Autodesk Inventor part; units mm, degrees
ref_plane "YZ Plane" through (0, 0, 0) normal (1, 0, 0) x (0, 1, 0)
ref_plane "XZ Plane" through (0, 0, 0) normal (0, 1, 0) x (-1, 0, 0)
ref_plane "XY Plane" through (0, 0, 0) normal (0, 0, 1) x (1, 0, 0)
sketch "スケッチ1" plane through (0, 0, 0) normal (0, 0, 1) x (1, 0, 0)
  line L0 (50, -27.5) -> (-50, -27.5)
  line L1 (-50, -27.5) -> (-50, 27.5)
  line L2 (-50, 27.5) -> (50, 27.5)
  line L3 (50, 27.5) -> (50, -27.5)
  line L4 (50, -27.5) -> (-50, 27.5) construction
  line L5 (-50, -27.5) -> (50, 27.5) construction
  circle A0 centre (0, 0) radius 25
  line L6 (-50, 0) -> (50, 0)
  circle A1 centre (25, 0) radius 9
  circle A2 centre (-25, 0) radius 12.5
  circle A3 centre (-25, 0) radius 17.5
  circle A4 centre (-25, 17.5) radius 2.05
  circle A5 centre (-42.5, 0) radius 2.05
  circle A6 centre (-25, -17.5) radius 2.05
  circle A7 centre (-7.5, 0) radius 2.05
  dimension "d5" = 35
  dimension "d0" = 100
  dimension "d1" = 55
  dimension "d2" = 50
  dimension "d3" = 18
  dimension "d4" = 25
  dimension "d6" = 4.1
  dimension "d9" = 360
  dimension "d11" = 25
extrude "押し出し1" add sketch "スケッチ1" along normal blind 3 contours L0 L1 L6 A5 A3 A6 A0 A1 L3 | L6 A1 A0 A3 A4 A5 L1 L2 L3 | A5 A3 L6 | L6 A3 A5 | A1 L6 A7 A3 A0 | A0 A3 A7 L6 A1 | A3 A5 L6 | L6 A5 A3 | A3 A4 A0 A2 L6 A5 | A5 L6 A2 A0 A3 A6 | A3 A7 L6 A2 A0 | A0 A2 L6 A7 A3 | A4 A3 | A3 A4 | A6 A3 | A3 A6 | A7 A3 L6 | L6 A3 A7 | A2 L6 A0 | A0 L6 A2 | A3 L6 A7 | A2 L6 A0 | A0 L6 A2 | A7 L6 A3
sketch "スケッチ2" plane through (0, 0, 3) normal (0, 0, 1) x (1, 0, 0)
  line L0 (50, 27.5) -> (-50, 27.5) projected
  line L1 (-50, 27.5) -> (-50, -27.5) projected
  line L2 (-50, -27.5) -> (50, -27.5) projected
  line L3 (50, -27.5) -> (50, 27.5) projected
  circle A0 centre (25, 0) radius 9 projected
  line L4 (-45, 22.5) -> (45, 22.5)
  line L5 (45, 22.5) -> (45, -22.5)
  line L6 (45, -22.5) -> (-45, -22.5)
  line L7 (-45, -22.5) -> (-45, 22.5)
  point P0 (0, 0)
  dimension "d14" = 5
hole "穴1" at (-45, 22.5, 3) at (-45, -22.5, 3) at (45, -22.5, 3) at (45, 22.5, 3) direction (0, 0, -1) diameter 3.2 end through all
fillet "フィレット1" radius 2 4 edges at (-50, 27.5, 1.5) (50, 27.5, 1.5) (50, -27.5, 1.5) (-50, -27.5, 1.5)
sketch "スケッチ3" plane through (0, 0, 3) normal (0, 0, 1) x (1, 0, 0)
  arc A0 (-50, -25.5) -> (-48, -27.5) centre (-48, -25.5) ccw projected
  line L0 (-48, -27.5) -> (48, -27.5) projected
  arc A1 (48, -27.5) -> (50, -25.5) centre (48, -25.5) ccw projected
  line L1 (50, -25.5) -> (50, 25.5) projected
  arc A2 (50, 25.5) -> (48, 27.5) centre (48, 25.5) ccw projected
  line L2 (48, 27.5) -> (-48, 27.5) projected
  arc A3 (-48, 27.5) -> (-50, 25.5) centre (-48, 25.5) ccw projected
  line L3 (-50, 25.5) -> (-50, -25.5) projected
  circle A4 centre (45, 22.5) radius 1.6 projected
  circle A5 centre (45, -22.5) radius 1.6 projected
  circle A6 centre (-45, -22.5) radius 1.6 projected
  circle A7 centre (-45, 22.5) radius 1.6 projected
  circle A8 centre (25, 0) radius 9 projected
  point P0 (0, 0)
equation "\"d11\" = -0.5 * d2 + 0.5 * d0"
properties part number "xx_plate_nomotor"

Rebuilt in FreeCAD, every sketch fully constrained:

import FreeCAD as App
import Part
import Sketcher

V = App.Vector
Q = App.Units.Quantity


def edges_at(feature, points):
    """Names of the edges that pass closest to the given points."""
    edges = feature.Shape.Edges
    near = lambda p: min(range(len(edges)), key=lambda i: edges[i].distToShape(Part.Vertex(*p))[0])
    return sorted({f"Edge{near(p) + 1}" for p in points})


def add_polygon(sketch, points):
    """Adds a closed chain of lines whose ends are joined by coincident constraints."""
    first, n = sketch.GeometryCount, len(points)
    for a, b in zip(points, points[1:] + points[:1]):
        sketch.addGeometry(Part.LineSegment(App.Vector(*a, 0), App.Vector(*b, 0)), False)
    for i in range(n):
        sketch.addConstraint(Sketcher.Constraint("Coincident", first + i, 2, first + (i + 1) % n, 1))

doc = App.newDocument("Part")
body = doc.addObject("PartDesign::Body", "Body")

sketch1 = body.newObject("Sketcher::SketchObject", "Sketch")
sketch1.AttachmentSupport = (doc.getObject("XY_Plane"), [""])
sketch1.MapMode = "FlatFace"
add_polygon(sketch1, [(-50, -28), (50, -28), (50, 28), (-50, 28)])
sketch1.addGeometry(Part.Circle(V(25, 0, 0), V(0, 0, 1), 9), False)
sketch1.addConstraint([
    Sketcher.Constraint("Horizontal", 0),
    Sketcher.Constraint("Vertical", 1),
    Sketcher.Constraint("Horizontal", 2),
    Sketcher.Constraint("Vertical", 3),
    Sketcher.Constraint("Symmetric", 0, 2, 2, 2, -1, 1),
    Sketcher.Constraint("PointOnObject", 4, 3, -1),
    Sketcher.Constraint("Diameter", 4, Q("18 mm")),
    Sketcher.Constraint("DistanceX", 0, 1, 0, 2, Q("100 mm")),
    Sketcher.Constraint("DistanceY", 1, 1, 1, 2, Q("55 mm")),
    Sketcher.Constraint("DistanceX", -1, 1, 4, 3, Q("25 mm")),
])
pad1 = body.newObject("PartDesign::Pad", "Pad")
pad1.Profile = sketch1
pad1.Length = 3

sketch2 = body.newObject("Sketcher::SketchObject", "Sketch001")
sketch2.AttachmentSupport = (doc.getObject("XY_Plane"), [""])
sketch2.MapMode = "FlatFace"
sketch2.AttachmentOffset = App.Placement(V(0, 0, 3), App.Rotation())
sketch2.addGeometry([
    Part.Circle(V(-45, 22.5, 0), V(0, 0, 1), 1.6),
    Part.Circle(V(-45, -22.5, 0), V(0, 0, 1), 1.6),
    Part.Circle(V(45, -22.5, 0), V(0, 0, 1), 1.6),
    Part.Circle(V(45, 22.5, 0), V(0, 0, 1), 1.6),
], False)
sketch2.addConstraint([
    Sketcher.Constraint("Equal", 0, 1),
    Sketcher.Constraint("Equal", 1, 2),
    Sketcher.Constraint("Equal", 2, 3),
    Sketcher.Constraint("Symmetric", 0, 3, 2, 3, -1, 1),
    Sketcher.Constraint("Symmetric", 1, 3, 3, 3, -1, 1),
    Sketcher.Constraint("Symmetric", 1, 3, 2, 3, -2),
    Sketcher.Constraint("Diameter", 0, Q("3.2 mm")),
    Sketcher.Constraint("DistanceX", 0, 3, -1, 1, Q("45 mm")),
    Sketcher.Constraint("DistanceY", 1, 3, 0, 3, Q("45 mm")),
])
doc.recompute()
hole = body.newObject("PartDesign::Hole", "Hole")
hole.Profile = sketch2
hole.ThreadType = "None"
hole.Diameter = 3.2
hole.DepthType = "ThroughAll"
doc.recompute()

fillet = body.newObject("PartDesign::Fillet", "Fillet")
fillet.Base = (hole, edges_at(hole, [
    (-50, 27.5, 1.5),
    (50, 27.5, 1.5),
    (50, -27.5, 1.5),
    (-50, -27.5, 1.5),
]))
fillet.Radius = 2

doc.recompute()
